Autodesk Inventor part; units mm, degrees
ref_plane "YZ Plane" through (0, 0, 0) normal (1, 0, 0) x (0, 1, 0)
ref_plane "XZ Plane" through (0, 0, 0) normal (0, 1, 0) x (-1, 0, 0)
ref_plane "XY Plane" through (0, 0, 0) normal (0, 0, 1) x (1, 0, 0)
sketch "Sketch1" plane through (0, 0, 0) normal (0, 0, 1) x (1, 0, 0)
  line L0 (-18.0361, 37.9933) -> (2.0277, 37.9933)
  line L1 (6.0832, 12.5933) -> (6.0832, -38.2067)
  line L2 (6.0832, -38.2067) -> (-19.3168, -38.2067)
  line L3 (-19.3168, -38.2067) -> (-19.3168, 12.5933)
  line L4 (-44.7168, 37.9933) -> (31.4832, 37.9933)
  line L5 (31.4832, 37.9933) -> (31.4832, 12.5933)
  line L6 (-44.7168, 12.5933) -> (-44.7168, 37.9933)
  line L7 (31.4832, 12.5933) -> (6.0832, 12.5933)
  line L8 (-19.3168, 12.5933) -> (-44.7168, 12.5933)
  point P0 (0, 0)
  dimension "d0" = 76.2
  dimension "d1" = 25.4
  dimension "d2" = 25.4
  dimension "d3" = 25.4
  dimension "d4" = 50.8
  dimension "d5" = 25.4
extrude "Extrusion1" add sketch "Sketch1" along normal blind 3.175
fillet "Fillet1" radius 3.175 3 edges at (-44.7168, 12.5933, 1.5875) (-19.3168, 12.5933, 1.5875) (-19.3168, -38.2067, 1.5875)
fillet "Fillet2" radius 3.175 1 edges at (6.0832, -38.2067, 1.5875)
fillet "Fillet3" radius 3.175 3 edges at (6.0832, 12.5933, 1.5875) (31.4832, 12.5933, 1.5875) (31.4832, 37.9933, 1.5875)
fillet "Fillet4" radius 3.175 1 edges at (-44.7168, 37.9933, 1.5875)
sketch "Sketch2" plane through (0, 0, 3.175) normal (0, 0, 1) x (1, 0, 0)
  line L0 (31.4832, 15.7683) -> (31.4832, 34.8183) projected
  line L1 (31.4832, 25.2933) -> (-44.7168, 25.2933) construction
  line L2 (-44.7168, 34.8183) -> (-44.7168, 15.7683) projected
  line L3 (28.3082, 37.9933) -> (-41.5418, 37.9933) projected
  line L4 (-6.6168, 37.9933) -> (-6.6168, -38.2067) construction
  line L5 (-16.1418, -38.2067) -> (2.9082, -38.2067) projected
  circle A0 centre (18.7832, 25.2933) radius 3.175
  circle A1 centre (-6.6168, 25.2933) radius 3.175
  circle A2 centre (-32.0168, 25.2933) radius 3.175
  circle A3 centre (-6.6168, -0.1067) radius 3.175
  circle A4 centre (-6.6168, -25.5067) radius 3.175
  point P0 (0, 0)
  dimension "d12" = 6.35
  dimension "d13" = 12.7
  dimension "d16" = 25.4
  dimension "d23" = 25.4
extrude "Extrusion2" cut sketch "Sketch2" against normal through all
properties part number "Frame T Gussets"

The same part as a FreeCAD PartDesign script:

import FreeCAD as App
import Part
import Sketcher

V = App.Vector
Q = App.Units.Quantity


def edges_at(feature, points):
    """Names of the edges that pass closest to the given points."""
    edges = feature.Shape.Edges
    near = lambda p: min(range(len(edges)), key=lambda i: edges[i].distToShape(Part.Vertex(*p))[0])
    return sorted({f"Edge{near(p) + 1}" for p in points})


def add_polygon(sketch, points):
    """Adds a closed chain of lines whose ends are joined by coincident constraints."""
    first, n = sketch.GeometryCount, len(points)
    for a, b in zip(points, points[1:] + points[:1]):
        sketch.addGeometry(Part.LineSegment(App.Vector(*a, 0), App.Vector(*b, 0)), False)
    for i in range(n):
        sketch.addConstraint(Sketcher.Constraint("Coincident", first + i, 2, first + (i + 1) % n, 1))

doc = App.newDocument("Part")
body = doc.addObject("PartDesign::Body", "Body")

sketch1 = body.newObject("Sketcher::SketchObject", "Sketch")
sketch1.AttachmentSupport = (doc.getObject("XY_Plane"), [""])
sketch1.MapMode = "FlatFace"
add_polygon(sketch1, [(31, 38), (-45, 38), (-45, 13), (-19, 13), (-19, -38), (6, -38), (6, 13), (31, 13)])
sketch1.addConstraint([
    Sketcher.Constraint("Horizontal", 0),
    Sketcher.Constraint("Vertical", 1),
    Sketcher.Constraint("Horizontal", 2),
    Sketcher.Constraint("Vertical", 3),
    Sketcher.Constraint("Horizontal", 4),
    Sketcher.Constraint("Vertical", 5),
    Sketcher.Constraint("Horizontal", 6),
    Sketcher.Constraint("Vertical", 7),
    Sketcher.Constraint("Horizontal", 2, 2, 5, 2),
    Sketcher.Constraint("Equal", 2, 4),
    Sketcher.Constraint("Equal", 4, 6),
    Sketcher.Constraint("Equal", 6, 1),
    Sketcher.Constraint("DistanceX", 0, 2, 0, 1, Q("3 in")),
    Sketcher.Constraint("DistanceY", 3, 2, 3, 1, Q("2 in")),
    Sketcher.Constraint("DistanceX", 0, 2, -1, 1, Q("1.7605 in")),
    Sketcher.Constraint("DistanceY", -1, 1, 0, 2, Q("1.4958 in")),
])
pad1 = body.newObject("PartDesign::Pad", "Pad")
pad1.Profile = sketch1
pad1.Length = Q("0.125 in")
doc.recompute()

fillet = body.newObject("PartDesign::Fillet", "Fillet")
fillet.Base = (pad1, edges_at(pad1, [(-44.717, 12.593, 1.587), (-19.317, 12.593, 1.587), (-19.317, -38.207, 1.587)]))
fillet.Radius = Q("0.125 in")
doc.recompute()

fillet2 = body.newObject("PartDesign::Fillet", "Fillet001")
fillet2.Base = (fillet, edges_at(fillet, [(6.083, -38.207, 1.587)]))
fillet2.Radius = Q("0.125 in")
doc.recompute()

fillet3 = body.newObject("PartDesign::Fillet", "Fillet002")
fillet3.Base = (fillet2, edges_at(fillet2, [(6.083, 12.593, 1.587), (31.483, 12.593, 1.587), (31.483, 37.993, 1.587)]))
fillet3.Radius = Q("0.125 in")
doc.recompute()

fillet4 = body.newObject("PartDesign::Fillet", "Fillet003")
fillet4.Base = (fillet3, edges_at(fillet3, [(-44.717, 37.993, 1.587)]))
fillet4.Radius = Q("0.125 in")

sketch2 = body.newObject("Sketcher::SketchObject", "Sketch001")
sketch2.AttachmentSupport = (doc.getObject("XY_Plane"), [""])
sketch2.MapMode = "FlatFace"
sketch2.AttachmentOffset = App.Placement(V(0, 0, 0.125 * 25.4), App.Rotation())
sketch2.addGeometry([
    Part.Circle(V(18.8, 25.3, 0), V(0, 0, 1), 3.2),
    Part.Circle(V(-6.6, 25.3, 0), V(0, 0, 1), 3.2),
    Part.Circle(V(-32, 25.3, 0), V(0, 0, 1), 3.2),
    Part.Circle(V(-6.6, -0.1, 0), V(0, 0, 1), 3.2),
    Part.Circle(V(-6.6, -25.5, 0), V(0, 0, 1), 3.2),
], False)
sketch2.addConstraint([
    Sketcher.Constraint("Equal", 0, 1),
    Sketcher.Constraint("Equal", 1, 2),
    Sketcher.Constraint("Equal", 2, 3),
    Sketcher.Constraint("Equal", 3, 4),
    Sketcher.Constraint("Horizontal", 0, 3, 1, 3),
    Sketcher.Constraint("Horizontal", 1, 3, 2, 3),
    Sketcher.Constraint("Vertical", 1, 3, 3, 3),
    Sketcher.Constraint("Vertical", 3, 3, 4, 3),
    Sketcher.Constraint("Diameter", 0, Q("0.25 in")),
    Sketcher.Constraint("DistanceX", 1, 3, 0, 3, Q("1 in")),
    Sketcher.Constraint("DistanceX", 2, 3, 1, 3, Q("1 in")),
    Sketcher.Constraint("DistanceY", 3, 3, 1, 3, Q("1 in")),
    Sketcher.Constraint("DistanceY", 4, 3, 3, 3, Q("1 in")),
    Sketcher.Constraint("DistanceX", -1, 1, 0, 3, Q("0.7395 in")),
    Sketcher.Constraint("DistanceY", -1, 1, 0, 3, Q("0.9958 in")),
])
pocket1 = body.newObject("PartDesign::Pocket", "Pocket")
pocket1.Profile = sketch2
pocket1.Type = "ThroughAll"

doc.recompute()
